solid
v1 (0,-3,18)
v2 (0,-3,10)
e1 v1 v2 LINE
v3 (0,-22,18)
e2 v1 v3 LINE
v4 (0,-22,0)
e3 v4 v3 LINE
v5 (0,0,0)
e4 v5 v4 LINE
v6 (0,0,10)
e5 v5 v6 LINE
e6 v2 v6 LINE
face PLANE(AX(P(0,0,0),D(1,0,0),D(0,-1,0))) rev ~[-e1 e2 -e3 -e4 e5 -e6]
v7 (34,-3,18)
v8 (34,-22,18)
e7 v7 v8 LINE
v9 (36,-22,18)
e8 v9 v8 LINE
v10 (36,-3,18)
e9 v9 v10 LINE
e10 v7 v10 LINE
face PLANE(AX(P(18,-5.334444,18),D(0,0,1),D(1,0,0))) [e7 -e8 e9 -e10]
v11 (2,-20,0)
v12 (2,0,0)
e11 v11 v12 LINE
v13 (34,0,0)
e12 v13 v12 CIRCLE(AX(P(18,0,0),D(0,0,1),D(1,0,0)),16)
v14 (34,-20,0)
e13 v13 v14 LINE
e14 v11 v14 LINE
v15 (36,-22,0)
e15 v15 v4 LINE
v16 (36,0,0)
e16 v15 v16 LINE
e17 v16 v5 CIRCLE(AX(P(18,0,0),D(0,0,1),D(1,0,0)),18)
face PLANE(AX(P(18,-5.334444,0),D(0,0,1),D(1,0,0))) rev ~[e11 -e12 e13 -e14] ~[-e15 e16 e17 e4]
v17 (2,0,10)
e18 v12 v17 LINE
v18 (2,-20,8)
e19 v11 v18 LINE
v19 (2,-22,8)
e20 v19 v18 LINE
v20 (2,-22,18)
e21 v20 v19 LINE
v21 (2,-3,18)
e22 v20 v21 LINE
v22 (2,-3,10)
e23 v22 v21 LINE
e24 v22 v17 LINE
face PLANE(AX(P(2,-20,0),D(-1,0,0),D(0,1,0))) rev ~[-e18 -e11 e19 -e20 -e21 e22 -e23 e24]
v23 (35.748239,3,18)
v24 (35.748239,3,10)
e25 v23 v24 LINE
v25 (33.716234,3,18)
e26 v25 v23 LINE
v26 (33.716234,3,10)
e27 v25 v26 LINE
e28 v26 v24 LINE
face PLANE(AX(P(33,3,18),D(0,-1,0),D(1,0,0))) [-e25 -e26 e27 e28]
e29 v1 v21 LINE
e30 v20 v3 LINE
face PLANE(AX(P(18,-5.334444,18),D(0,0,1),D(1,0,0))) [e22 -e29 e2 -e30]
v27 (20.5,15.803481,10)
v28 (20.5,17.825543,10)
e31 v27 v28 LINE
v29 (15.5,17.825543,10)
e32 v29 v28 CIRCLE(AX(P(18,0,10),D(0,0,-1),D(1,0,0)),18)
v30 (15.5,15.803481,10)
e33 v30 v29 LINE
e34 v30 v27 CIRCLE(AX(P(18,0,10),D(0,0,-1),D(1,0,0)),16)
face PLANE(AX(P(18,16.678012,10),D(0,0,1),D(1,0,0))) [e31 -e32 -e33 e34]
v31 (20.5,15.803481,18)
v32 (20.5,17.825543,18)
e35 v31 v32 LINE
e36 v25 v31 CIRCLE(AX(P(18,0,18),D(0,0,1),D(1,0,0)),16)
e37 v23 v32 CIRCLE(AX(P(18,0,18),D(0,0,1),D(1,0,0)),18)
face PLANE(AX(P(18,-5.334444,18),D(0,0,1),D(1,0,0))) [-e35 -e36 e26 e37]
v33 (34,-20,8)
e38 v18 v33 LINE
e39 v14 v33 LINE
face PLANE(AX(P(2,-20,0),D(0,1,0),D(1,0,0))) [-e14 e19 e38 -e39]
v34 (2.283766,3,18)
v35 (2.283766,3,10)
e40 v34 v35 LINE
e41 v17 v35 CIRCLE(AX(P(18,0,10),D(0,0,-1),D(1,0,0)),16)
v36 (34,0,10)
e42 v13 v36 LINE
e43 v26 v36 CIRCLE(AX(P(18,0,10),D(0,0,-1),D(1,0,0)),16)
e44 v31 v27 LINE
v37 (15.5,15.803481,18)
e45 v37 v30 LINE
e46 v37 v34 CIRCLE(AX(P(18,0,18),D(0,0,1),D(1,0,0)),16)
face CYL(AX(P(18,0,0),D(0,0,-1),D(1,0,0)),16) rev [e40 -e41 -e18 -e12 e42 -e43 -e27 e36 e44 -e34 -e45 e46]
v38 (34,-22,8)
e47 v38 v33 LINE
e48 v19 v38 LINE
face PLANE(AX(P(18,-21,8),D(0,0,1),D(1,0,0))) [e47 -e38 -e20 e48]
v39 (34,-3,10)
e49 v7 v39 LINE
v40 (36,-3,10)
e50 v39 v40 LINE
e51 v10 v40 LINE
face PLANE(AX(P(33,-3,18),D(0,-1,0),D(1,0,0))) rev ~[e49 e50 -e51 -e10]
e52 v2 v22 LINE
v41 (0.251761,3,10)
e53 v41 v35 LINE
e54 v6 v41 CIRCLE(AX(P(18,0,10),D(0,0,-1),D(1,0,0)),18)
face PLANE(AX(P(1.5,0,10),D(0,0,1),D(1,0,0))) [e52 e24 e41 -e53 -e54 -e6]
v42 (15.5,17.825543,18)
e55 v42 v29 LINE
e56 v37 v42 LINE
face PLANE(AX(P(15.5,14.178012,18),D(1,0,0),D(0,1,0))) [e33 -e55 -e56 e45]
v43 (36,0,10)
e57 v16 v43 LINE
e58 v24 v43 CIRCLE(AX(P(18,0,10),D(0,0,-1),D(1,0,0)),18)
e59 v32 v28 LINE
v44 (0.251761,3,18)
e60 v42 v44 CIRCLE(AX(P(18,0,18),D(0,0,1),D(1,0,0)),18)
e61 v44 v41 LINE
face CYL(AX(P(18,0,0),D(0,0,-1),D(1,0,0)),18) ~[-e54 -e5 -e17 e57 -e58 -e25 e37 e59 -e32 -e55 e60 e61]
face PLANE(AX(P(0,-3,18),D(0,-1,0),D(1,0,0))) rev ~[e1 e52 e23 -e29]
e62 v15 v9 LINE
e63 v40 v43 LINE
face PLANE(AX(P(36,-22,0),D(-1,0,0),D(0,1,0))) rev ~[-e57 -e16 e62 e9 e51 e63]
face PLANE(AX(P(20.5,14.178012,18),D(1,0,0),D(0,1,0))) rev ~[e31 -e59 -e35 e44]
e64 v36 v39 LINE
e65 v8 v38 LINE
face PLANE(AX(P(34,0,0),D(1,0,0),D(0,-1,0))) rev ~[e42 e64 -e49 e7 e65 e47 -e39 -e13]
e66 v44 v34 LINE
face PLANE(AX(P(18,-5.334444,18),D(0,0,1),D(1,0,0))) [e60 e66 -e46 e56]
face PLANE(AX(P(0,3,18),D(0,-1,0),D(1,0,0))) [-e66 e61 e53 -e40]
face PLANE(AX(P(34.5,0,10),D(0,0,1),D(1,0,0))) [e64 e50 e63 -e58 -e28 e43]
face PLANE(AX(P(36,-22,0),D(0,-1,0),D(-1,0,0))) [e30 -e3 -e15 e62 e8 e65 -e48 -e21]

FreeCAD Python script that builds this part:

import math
import FreeCAD as App
import Part
import Sketcher
from FreeCAD import Vector

doc = App.newDocument("Part")
body = doc.addObject("PartDesign::Body", "Body")

sketch1 = body.newObject("Sketcher::SketchObject", "Sketch")
sketch1.AttachmentSupport = (doc.getObject("XY_Plane"), [""])
sketch1.MapMode = "FlatFace"
sketch1.addGeometry([
    Part.ArcOfCircle(Part.Circle(Vector(18, 0, 0), Vector(0, 0, 1), 18), math.radians(0), math.radians(180)),
    Part.LineSegment(Vector(0, 0, 0), Vector(0, -22, 0)),
    Part.LineSegment(Vector(0, -22, 0), Vector(36, -22, 0)),
    Part.LineSegment(Vector(36, -22, 0), Vector(36, 0, 0)),
    Part.ArcOfCircle(Part.Circle(Vector(18, 0, 0), Vector(0, 0, 1), 16), math.radians(0), math.radians(180)),
    Part.LineSegment(Vector(34, 0, 0), Vector(34, -20, 0)),
    Part.LineSegment(Vector(34, -20, 0), Vector(2, -20, 0)),
    Part.LineSegment(Vector(2, -20, 0), Vector(2, 0, 0)),
], False)
sketch1.addConstraint([
    Sketcher.Constraint("Tangent", 0, 2, 1, 1),
    Sketcher.Constraint("Coincident", 1, 2, 2, 1),
    Sketcher.Constraint("Coincident", 2, 2, 3, 1),
    Sketcher.Constraint("Tangent", 3, 2, 0, 1),
    Sketcher.Constraint("Tangent", 4, 1, 5, 1),
    Sketcher.Constraint("Coincident", 5, 2, 6, 1),
    Sketcher.Constraint("Coincident", 6, 2, 7, 1),
    Sketcher.Constraint("Tangent", 7, 2, 4, 2),
    Sketcher.Constraint("Vertical", 1),
    Sketcher.Constraint("Horizontal", 2),
    Sketcher.Constraint("Vertical", 3),
    Sketcher.Constraint("Vertical", 5),
    Sketcher.Constraint("Horizontal", 6),
    Sketcher.Constraint("Vertical", 7),
    Sketcher.Constraint("Coincident", 0, 2, -1, 1),
    Sketcher.Constraint("Coincident", 4, 3, 0, 3),
    Sketcher.Constraint("Radius", 0, 18.0),
    Sketcher.Constraint("Radius", 4, 16.0),
    Sketcher.Constraint("DistanceY", 1, 2, 1, 1, 22.0),
    Sketcher.Constraint("DistanceY", 5, 2, 5, 1, 20.0),
])
pad1 = body.newObject("PartDesign::Pad", "Pad")
pad1.Profile = sketch1
pad1.Length = 18

sketch2 = body.newObject("Sketcher::SketchObject", "Sketch001")
sketch2.AttachmentSupport = (doc.getObject("XY_Plane"), [""])
sketch2.MapMode = "FlatFace"
sketch2.AttachmentOffset = App.Placement(Vector(0, 0, 18), App.Rotation())
sketch2.addGeometry([
    Part.LineSegment(Vector(2, -20, 0), Vector(2, -22, 0)),
    Part.LineSegment(Vector(2, -22, 0), Vector(34, -22, 0)),
    Part.LineSegment(Vector(34, -22, 0), Vector(34, -20, 0)),
    Part.LineSegment(Vector(34, -20, 0), Vector(2, -20, 0)),
], False)
sketch2.addConstraint([
    Sketcher.Constraint("Coincident", 0, 2, 1, 1),
    Sketcher.Constraint("Coincident", 1, 2, 2, 1),
    Sketcher.Constraint("Coincident", 2, 2, 3, 1),
    Sketcher.Constraint("Coincident", 3, 2, 0, 1),
    Sketcher.Constraint("Vertical", 0),
    Sketcher.Constraint("Horizontal", 1),
    Sketcher.Constraint("Vertical", 2),
    Sketcher.Constraint("Horizontal", 3),
    Sketcher.Constraint("DistanceX", 1, 1, 1, 2, 32.0),
    Sketcher.Constraint("DistanceY", 0, 2, 0, 1, 2.0),
    Sketcher.Constraint("DistanceX", -1, 1, 0, 2, 2.0),
    Sketcher.Constraint("DistanceY", 0, 2, -1, 1, 22.0),
])
pocket1 = body.newObject("PartDesign::Pocket", "Pocket")
pocket1.Profile = sketch2
pocket1.Length = 10

sketch3 = body.newObject("Sketcher::SketchObject", "Sketch002")
sketch3.AttachmentSupport = (doc.getObject("XY_Plane"), [""])
sketch3.MapMode = "FlatFace"
sketch3.AttachmentOffset = App.Placement(Vector(0, 0, 18), App.Rotation())
sketch3.addGeometry([
    Part.LineSegment(Vector(15.5, 19.2, 0), Vector(15.5, 14.2, 0)),
    Part.LineSegment(Vector(15.5, 14.2, 0), Vector(20.5, 14.2, 0)),
    Part.LineSegment(Vector(20.5, 14.2, 0), Vector(20.5, 19.2, 0)),
    Part.LineSegment(Vector(20.5, 19.2, 0), Vector(15.5, 19.2, 0)),
    Part.LineSegment(Vector(0, 3, 0), Vector(0, -3, 0)),
    Part.LineSegment(Vector(0, -3, 0), Vector(3, -3, 0)),
    Part.LineSegment(Vector(3, -3, 0), Vector(3, 3, 0)),
    Part.LineSegment(Vector(3, 3, 0), Vector(0, 3, 0)),
    Part.LineSegment(Vector(33, 3, 0), Vector(33, -3, 0)),
    Part.LineSegment(Vector(33, -3, 0), Vector(36, -3, 0)),
    Part.LineSegment(Vector(36, -3, 0), Vector(36, 3, 0)),
    Part.LineSegment(Vector(36, 3, 0), Vector(33, 3, 0)),
], False)
sketch3.addConstraint([
    Sketcher.Constraint("Coincident", 0, 2, 1, 1),
    Sketcher.Constraint("Coincident", 1, 2, 2, 1),
    Sketcher.Constraint("Coincident", 2, 2, 3, 1),
    Sketcher.Constraint("Coincident", 3, 2, 0, 1),
    Sketcher.Constraint("Coincident", 4, 2, 5, 1),
    Sketcher.Constraint("Coincident", 5, 2, 6, 1),
    Sketcher.Constraint("Coincident", 6, 2, 7, 1),
    Sketcher.Constraint("Coincident", 7, 2, 4, 1),
    Sketcher.Constraint("Coincident", 8, 2, 9, 1),
    Sketcher.Constraint("Coincident", 9, 2, 10, 1),
    Sketcher.Constraint("Coincident", 10, 2, 11, 1),
    Sketcher.Constraint("Coincident", 11, 2, 8, 1),
    Sketcher.Constraint("Vertical", 0),
    Sketcher.Constraint("Horizontal", 1),
    Sketcher.Constraint("Vertical", 2),
    Sketcher.Constraint("Horizontal", 3),
    Sketcher.Constraint("Vertical", 4),
    Sketcher.Constraint("Horizontal", 5),
    Sketcher.Constraint("Vertical", 6),
    Sketcher.Constraint("Horizontal", 7),
    Sketcher.Constraint("Vertical", 8),
    Sketcher.Constraint("Horizontal", 9),
    Sketcher.Constraint("Vertical", 10),
    Sketcher.Constraint("Horizontal", 11),
    Sketcher.Constraint("Symmetric", 4, 2, 7, 2, -1, 1),
    Sketcher.Constraint("Horizontal", 5, 2, 8, 2),
    Sketcher.Constraint("Horizontal", 7, 2, 10, 2),
    Sketcher.Constraint("Equal", 7, 9),
    Sketcher.Constraint("Equal", 3, 0),
    Sketcher.Constraint("DistanceX", 1, 1, 1, 2, 5.0),
    Sketcher.Constraint("DistanceX", 5, 1, 5, 2, 3.0),
    Sketcher.Constraint("DistanceY", 4, 2, 4, 1, 6.0),
    Sketcher.Constraint("DistanceX", -1, 1, 8, 2, 33.0),
    Sketcher.Constraint("DistanceX", -1, 1, 0, 2, 15.5),
    Sketcher.Constraint("DistanceY", -1, 1, 2, 2, 19.178012),
])
pocket2 = body.newObject("PartDesign::Pocket", "Pocket001")
pocket2.Profile = sketch3
pocket2.Length = 8

doc.recompute()
